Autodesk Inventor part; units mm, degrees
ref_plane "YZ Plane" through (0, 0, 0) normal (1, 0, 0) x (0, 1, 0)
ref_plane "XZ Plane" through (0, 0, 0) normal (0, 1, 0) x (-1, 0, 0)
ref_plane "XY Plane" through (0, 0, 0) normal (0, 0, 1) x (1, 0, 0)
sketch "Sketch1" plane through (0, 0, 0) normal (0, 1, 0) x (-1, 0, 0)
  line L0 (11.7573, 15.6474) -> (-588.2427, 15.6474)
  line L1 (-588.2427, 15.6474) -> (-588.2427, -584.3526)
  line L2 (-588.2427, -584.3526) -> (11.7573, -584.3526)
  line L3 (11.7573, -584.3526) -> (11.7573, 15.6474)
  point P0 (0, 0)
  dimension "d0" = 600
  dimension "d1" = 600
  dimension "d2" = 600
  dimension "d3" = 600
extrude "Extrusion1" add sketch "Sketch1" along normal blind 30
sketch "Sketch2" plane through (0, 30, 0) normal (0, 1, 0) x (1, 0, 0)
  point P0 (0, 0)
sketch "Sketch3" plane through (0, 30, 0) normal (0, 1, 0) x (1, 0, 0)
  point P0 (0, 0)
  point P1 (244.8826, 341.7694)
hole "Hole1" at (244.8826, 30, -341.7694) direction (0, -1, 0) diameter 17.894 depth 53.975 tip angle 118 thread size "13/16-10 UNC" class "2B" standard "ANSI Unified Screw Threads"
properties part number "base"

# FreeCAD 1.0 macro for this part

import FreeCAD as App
import Part
import Sketcher

doc = App.newDocument("Part")
body = doc.addObject("PartDesign::Body", "Body")

sketch1 = body.newObject("Sketcher::SketchObject", "Sketch")
sketch1.AttachmentSupport = (doc.getObject("XZ_Plane"), [""])
sketch1.MapMode = "FlatFace"
sketch1.addGeometry(Part.LineSegment(App.Vector(-12, -584, 0), App.Vector(-12, 16, 0)), False)
sketch1.addGeometry(Part.LineSegment(App.Vector(-12, 16, 0), App.Vector(588, 16, 0)), False)
sketch1.addGeometry(Part.LineSegment(App.Vector(588, 16, 0), App.Vector(588, -584, 0)), False)
sketch1.addGeometry(Part.LineSegment(App.Vector(588, -584, 0), App.Vector(-12, -584, 0)), False)
sketch1.addConstraint(Sketcher.Constraint("Coincident", 0, 2, 1, 1))
sketch1.addConstraint(Sketcher.Constraint("Coincident", 1, 2, 2, 1))
sketch1.addConstraint(Sketcher.Constraint("Coincident", 2, 2, 3, 1))
sketch1.addConstraint(Sketcher.Constraint("Coincident", 3, 2, 0, 1))
sketch1.addConstraint(Sketcher.Constraint("Vertical", 0))
sketch1.addConstraint(Sketcher.Constraint("Horizontal", 1))
sketch1.addConstraint(Sketcher.Constraint("Vertical", 2))
sketch1.addConstraint(Sketcher.Constraint("Horizontal", 3))
sketch1.addConstraint(Sketcher.Constraint("Equal", 3, 0))
sketch1.addConstraint(Sketcher.Constraint("DistanceX", 1, 1, 1, 2, 600.0))
sketch1.addConstraint(Sketcher.Constraint("DistanceX", 0, 2, -1, 1, 11.7573))
sketch1.addConstraint(Sketcher.Constraint("DistanceY", -1, 1, 0, 2, 15.6474))
pad1 = body.newObject("PartDesign::Pad", "Pad")
pad1.Profile = sketch1
pad1.Length = 30
pad1.Reversed = True

sketch2 = body.newObject("Sketcher::SketchObject", "Sketch001")
sketch2.AttachmentSupport = (doc.getObject("XZ_Plane"), [""])
sketch2.MapMode = "FlatFace"
sketch2.AttachmentOffset = App.Placement(App.Vector(0, 0, -30), App.Rotation())
sketch2.addGeometry(Part.Circle(App.Vector(245, -342, 0), App.Vector(0, 0, 1), 9), False)
sketch2.addConstraint(Sketcher.Constraint("Diameter", 0, 17.894))
sketch2.addConstraint(Sketcher.Constraint("DistanceX", -1, 1, 0, 3, 244.8826))
sketch2.addConstraint(Sketcher.Constraint("DistanceY", 0, 3, -1, 1, 341.7694))
doc.recompute()
hole = body.newObject("PartDesign::Hole", "Hole")
hole.Profile = sketch2
hole.ThreadType = "None"
hole.Diameter = 17.894
hole.DepthType = "Dimension"
hole.Depth = 53.975
hole.DrillPoint = "Angled"
hole.DrillPointAngle = 118
hole.Reversed = True

doc.recompute()
